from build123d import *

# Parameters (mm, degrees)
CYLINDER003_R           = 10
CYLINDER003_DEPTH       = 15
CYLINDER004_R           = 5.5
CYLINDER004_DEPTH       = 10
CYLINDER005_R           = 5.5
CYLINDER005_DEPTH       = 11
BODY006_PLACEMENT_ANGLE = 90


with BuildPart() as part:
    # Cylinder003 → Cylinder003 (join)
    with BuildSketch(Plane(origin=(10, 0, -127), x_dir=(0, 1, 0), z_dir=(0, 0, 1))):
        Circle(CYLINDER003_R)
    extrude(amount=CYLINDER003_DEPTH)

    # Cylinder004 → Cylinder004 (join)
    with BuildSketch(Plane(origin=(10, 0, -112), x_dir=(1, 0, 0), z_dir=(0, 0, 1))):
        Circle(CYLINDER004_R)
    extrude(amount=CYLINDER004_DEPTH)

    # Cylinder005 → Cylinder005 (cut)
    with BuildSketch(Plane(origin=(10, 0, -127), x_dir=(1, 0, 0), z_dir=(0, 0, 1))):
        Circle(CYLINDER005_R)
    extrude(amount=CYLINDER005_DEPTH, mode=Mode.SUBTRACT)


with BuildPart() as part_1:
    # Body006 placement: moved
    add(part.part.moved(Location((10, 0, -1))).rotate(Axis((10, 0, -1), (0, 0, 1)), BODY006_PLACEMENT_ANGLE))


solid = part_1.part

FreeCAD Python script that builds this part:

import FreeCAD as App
import Part
import Sketcher

V = App.Vector

doc = App.newDocument("Part")
params = doc.addObject("Spreadsheet::Sheet", "Params")
for row, (alias, value) in enumerate([
    ("sketch1_diameter", "20 mm"),
    ("pad1_length", "15 mm"),
    ("sketch2_diameter", "11 mm"),
    ("pad2_length", "10 mm"),
    ("sketch3_diameter", "11 mm"),
    ("pocket1_length", "11 mm"),
], start=1):
    params.set(f"A{row}", alias)
    params.set(f"B{row}", "=" + value)
    params.setAlias(f"B{row}", alias)

body = doc.addObject("PartDesign::Body", "Body")

# Sketch on XY plane
sketch1 = doc.addObject("Sketcher::SketchObject", "Sketch")
body.addObject(sketch1)
sketch1.AttachmentSupport = (doc.XY_Plane, [""])
sketch1.MapMode = "FlatFace"
sketch1.AttachmentOffset = App.Placement(V(0, 0, -127), App.Rotation())
sketch1.addGeometry(Part.Circle(V(10, 0, 0), V(0, 0, 1), 10), False)
sketch1.addConstraint([
    Sketcher.Constraint("PointOnObject", 0, 3, -1),
    Sketcher.Constraint("Diameter", 0, 20.0),
    Sketcher.Constraint("DistanceX", -1, 1, 0, 3, 10.0),
])
sketch1.setExpression("Constraints[1]", "Params.sketch1_diameter")
pad1 = doc.addObject("PartDesign::Pad", "Pad")
body.addObject(pad1)
pad1.Profile = sketch1
pad1.setExpression("Length", "Params.pad1_length")

# Sketch on XY plane
sketch2 = doc.addObject("Sketcher::SketchObject", "Sketch001")
body.addObject(sketch2)
sketch2.AttachmentSupport = (doc.XY_Plane, [""])
sketch2.MapMode = "FlatFace"
sketch2.AttachmentOffset = App.Placement(V(0, 0, -112), App.Rotation())
sketch2.addGeometry(Part.Circle(V(10, 0, 0), V(0, 0, 1), 6), False)
sketch2.addConstraint([
    Sketcher.Constraint("PointOnObject", 0, 3, -1),
    Sketcher.Constraint("Diameter", 0, 11.0),
    Sketcher.Constraint("DistanceX", -1, 1, 0, 3, 10.0),
])
sketch2.setExpression("Constraints[1]", "Params.sketch2_diameter")
pad2 = doc.addObject("PartDesign::Pad", "Pad001")
body.addObject(pad2)
pad2.Profile = sketch2
pad2.setExpression("Length", "Params.pad2_length")

# Sketch on XY plane
sketch3 = doc.addObject("Sketcher::SketchObject", "Sketch002")
body.addObject(sketch3)
sketch3.AttachmentSupport = (doc.XY_Plane, [""])
sketch3.MapMode = "FlatFace"
sketch3.AttachmentOffset = App.Placement(V(0, 0, -127), App.Rotation())
sketch3.addGeometry(Part.Circle(V(10, 0, 0), V(0, 0, 1), 6), False)
sketch3.addConstraint([
    Sketcher.Constraint("PointOnObject", 0, 3, -1),
    Sketcher.Constraint("Diameter", 0, 11.0),
    Sketcher.Constraint("DistanceX", -1, 1, 0, 3, 10.0),
])
sketch3.setExpression("Constraints[1]", "Params.sketch3_diameter")
pocket1 = doc.addObject("PartDesign::Pocket", "Pocket")
body.addObject(pocket1)
pocket1.Profile = sketch3
pocket1.setExpression("Length", "Params.pocket1_length")
pocket1.Reversed = True
body2 = doc.addObject("PartDesign::Body", "Body001")
doc.recompute()

body.Placement = App.Placement(V(10, 0, -1), App.Rotation(V(0, 0, 1), 90))
boolean = doc.addObject("PartDesign::Boolean", "Boolean")
body2.addObject(boolean)
boolean.Type = "Fuse"
boolean.addObjects([body])

doc.recompute()
